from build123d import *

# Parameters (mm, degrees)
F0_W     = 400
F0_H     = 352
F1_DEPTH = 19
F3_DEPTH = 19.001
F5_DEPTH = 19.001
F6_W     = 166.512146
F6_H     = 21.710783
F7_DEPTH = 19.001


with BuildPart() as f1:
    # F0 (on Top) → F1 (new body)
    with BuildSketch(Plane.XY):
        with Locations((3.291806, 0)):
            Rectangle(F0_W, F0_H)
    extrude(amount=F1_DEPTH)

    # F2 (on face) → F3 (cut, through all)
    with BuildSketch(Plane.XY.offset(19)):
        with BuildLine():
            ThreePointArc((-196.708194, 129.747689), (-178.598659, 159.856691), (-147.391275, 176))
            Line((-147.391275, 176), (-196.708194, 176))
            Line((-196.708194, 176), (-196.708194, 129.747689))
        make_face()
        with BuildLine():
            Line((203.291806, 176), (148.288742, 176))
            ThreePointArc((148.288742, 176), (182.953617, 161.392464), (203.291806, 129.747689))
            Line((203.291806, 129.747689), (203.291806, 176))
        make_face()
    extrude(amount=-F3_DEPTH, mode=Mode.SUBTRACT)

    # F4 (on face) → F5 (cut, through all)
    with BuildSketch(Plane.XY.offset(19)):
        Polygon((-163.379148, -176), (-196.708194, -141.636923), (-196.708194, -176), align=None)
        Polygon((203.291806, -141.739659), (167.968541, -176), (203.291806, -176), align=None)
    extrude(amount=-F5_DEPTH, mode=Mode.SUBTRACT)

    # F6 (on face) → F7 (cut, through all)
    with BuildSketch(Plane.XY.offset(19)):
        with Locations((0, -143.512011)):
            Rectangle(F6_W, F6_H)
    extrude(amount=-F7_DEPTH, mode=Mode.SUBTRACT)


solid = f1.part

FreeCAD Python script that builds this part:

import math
import FreeCAD as App
import Part
import Sketcher

doc = App.newDocument("Part")
params = doc.addObject("Spreadsheet::Sheet", "Params")
for row, (alias, value) in enumerate([
    ("sketch1_width", "400 mm"),
    ("sketch1_height", "352 mm"),
    ("pad1_length", "19 mm"),
], start=1):
    params.set(f"A{row}", alias)
    params.set(f"B{row}", "=" + value)
    params.setAlias(f"B{row}", alias)

body = doc.addObject("PartDesign::Body", "Body")

sketch1 = body.newObject("Sketcher::SketchObject", "Sketch")
sketch1.AttachmentSupport = (doc.getObject("XY_Plane"), [""])
sketch1.MapMode = "FlatFace"
sketch1.addGeometry(Part.LineSegment(App.Vector(-196.708194, 176, 0), App.Vector(-196.708194, -176, 0)), False)
sketch1.addGeometry(Part.LineSegment(App.Vector(-196.708194, -176, 0), App.Vector(203.291806, -176, 0)), False)
sketch1.addGeometry(Part.LineSegment(App.Vector(203.291806, -176, 0), App.Vector(203.291806, 176, 0)), False)
sketch1.addGeometry(Part.LineSegment(App.Vector(203.291806, 176, 0), App.Vector(-196.708194, 176, 0)), False)
sketch1.addConstraint(Sketcher.Constraint("Coincident", 0, 2, 1, 1))
sketch1.addConstraint(Sketcher.Constraint("Coincident", 1, 2, 2, 1))
sketch1.addConstraint(Sketcher.Constraint("Coincident", 2, 2, 3, 1))
sketch1.addConstraint(Sketcher.Constraint("Coincident", 3, 2, 0, 1))
sketch1.addConstraint(Sketcher.Constraint("Vertical", 0))
sketch1.addConstraint(Sketcher.Constraint("Horizontal", 1))
sketch1.addConstraint(Sketcher.Constraint("Vertical", 2))
sketch1.addConstraint(Sketcher.Constraint("Horizontal", 3))
sketch1.addConstraint(Sketcher.Constraint("DistanceX", 1, 1, 1, 2, 400.0))
sketch1.addConstraint(Sketcher.Constraint("DistanceY", 0, 2, 0, 1, 352.0))
sketch1.addConstraint(Sketcher.Constraint("DistanceY", 0, 2, -1, 1, 176.0))
sketch1.addConstraint(Sketcher.Constraint("DistanceX", 0, 2, -1, 1, 196.708194))
sketch1.setExpression("Constraints[8]", "Params.sketch1_width")
sketch1.setExpression("Constraints[9]", "Params.sketch1_height")
pad1 = body.newObject("PartDesign::Pad", "Pad")
pad1.Profile = sketch1
pad1.setExpression("Length", "Params.pad1_length")

sketch2 = body.newObject("Sketcher::SketchObject", "Sketch001")
sketch2.AttachmentSupport = (doc.getObject("XY_Plane"), [""])
sketch2.MapMode = "FlatFace"
sketch2.AttachmentOffset = App.Placement(App.Vector(0, 0, 19), App.Rotation())
sketch2.addGeometry(Part.ArcOfCircle(Part.Circle(App.Vector(-134.49161, 112.827175, 0), App.Vector(0, 0, 1), 64.476408), math.radians(101.540935), math.radians(164.785729)), False)
sketch2.addGeometry(Part.LineSegment(App.Vector(-147.391275, 176, 0), App.Vector(-196.708194, 176, 0)), False)
sketch2.addGeometry(Part.LineSegment(App.Vector(-196.708194, 176, 0), App.Vector(-196.708194, 129.747689, 0)), False)
sketch2.addGeometry(Part.LineSegment(App.Vector(203.291806, 176, 0), App.Vector(148.288742, 176, 0)), False)
sketch2.addGeometry(Part.ArcOfCircle(Part.Circle(App.Vector(142.041676, 112.740146, 0), App.Vector(0, 0, 1), 63.567562), math.radians(15.518568), math.radians(84.360187)), False)
sketch2.addGeometry(Part.LineSegment(App.Vector(203.291806, 129.747689, 0), App.Vector(203.291806, 176, 0)), False)
sketch2.addConstraint(Sketcher.Constraint("Coincident", 0, 1, 1, 1))
sketch2.addConstraint(Sketcher.Constraint("Coincident", 1, 2, 2, 1))
sketch2.addConstraint(Sketcher.Constraint("Coincident", 2, 2, 0, 2))
sketch2.addConstraint(Sketcher.Constraint("Coincident", 3, 2, 4, 2))
sketch2.addConstraint(Sketcher.Constraint("Coincident", 4, 1, 5, 1))
sketch2.addConstraint(Sketcher.Constraint("Coincident", 5, 2, 3, 1))
sketch2.addConstraint(Sketcher.Constraint("Horizontal", 1))
sketch2.addConstraint(Sketcher.Constraint("Vertical", 2))
sketch2.addConstraint(Sketcher.Constraint("Horizontal", 3))
sketch2.addConstraint(Sketcher.Constraint("Vertical", 5))
sketch2.addConstraint(Sketcher.Constraint("Horizontal", 1, 2, 3, 2))
sketch2.addConstraint(Sketcher.Constraint("Horizontal", 2, 2, 4, 1))
sketch2.addConstraint(Sketcher.Constraint("DistanceY", -1, 1, 0, 1, 176.0))
sketch2.addConstraint(Sketcher.Constraint("DistanceX", 2, 2, 4, 1, 400.0))
sketch2.addConstraint(Sketcher.Constraint("Radius", 4, 63.567562))
sketch2.addConstraint(Sketcher.Constraint("Radius", 0, 64.476408))
sketch2.addConstraint(Sketcher.Constraint("DistanceX", 1, 2, 1, 1, 49.316919))
sketch2.addConstraint(Sketcher.Constraint("DistanceY", 2, 2, 2, 1, 46.252311))
sketch2.addConstraint(Sketcher.Constraint("DistanceX", 3, 2, 3, 1, 55.003064))
sketch2.addConstraint(Sketcher.Constraint("DistanceX", 0, 3, -1, 1, 134.49161))
pocket1 = body.newObject("PartDesign::Pocket", "Pocket")
pocket1.Profile = sketch2
pocket1.Type = "ThroughAll"

sketch3 = body.newObject("Sketcher::SketchObject", "Sketch002")
sketch3.AttachmentSupport = (doc.getObject("XY_Plane"), [""])
sketch3.MapMode = "FlatFace"
sketch3.AttachmentOffset = App.Placement(App.Vector(0, 0, 19), App.Rotation())
sketch3.addGeometry(Part.LineSegment(App.Vector(-163.379148, -176, 0), App.Vector(-196.708194, -141.636923, 0)), False)
sketch3.addGeometry(Part.LineSegment(App.Vector(-196.708194, -141.636923, 0), App.Vector(-196.708194, -176, 0)), False)
sketch3.addGeometry(Part.LineSegment(App.Vector(-196.708194, -176, 0), App.Vector(-163.379148, -176, 0)), False)
sketch3.addGeometry(Part.LineSegment(App.Vector(203.291806, -141.739659, 0), App.Vector(167.968541, -176, 0)), False)
sketch3.addGeometry(Part.LineSegment(App.Vector(167.968541, -176, 0), App.Vector(203.291806, -176, 0)), False)
sketch3.addGeometry(Part.LineSegment(App.Vector(203.291806, -176, 0), App.Vector(203.291806, -141.739659, 0)), False)
sketch3.addConstraint(Sketcher.Constraint("Coincident", 0, 2, 1, 1))
sketch3.addConstraint(Sketcher.Constraint("Coincident", 1, 2, 2, 1))
sketch3.addConstraint(Sketcher.Constraint("Coincident", 2, 2, 0, 1))
sketch3.addConstraint(Sketcher.Constraint("Coincident", 3, 2, 4, 1))
sketch3.addConstraint(Sketcher.Constraint("Coincident", 4, 2, 5, 1))
sketch3.addConstraint(Sketcher.Constraint("Coincident", 5, 2, 3, 1))
sketch3.addConstraint(Sketcher.Constraint("Vertical", 1))
sketch3.addConstraint(Sketcher.Constraint("Horizontal", 2))
sketch3.addConstraint(Sketcher.Constraint("Horizontal", 4))
sketch3.addConstraint(Sketcher.Constraint("Vertical", 5))
sketch3.addConstraint(Sketcher.Constraint("Perpendicular", 0, 3))
sketch3.addConstraint(Sketcher.Constraint("Horizontal", 2, 2, 3, 2))
sketch3.addConstraint(Sketcher.Constraint("DistanceY", 1, 2, -1, 1, 176.0))
sketch3.addConstraint(Sketcher.Constraint("DistanceX", 1, 2, 4, 2, 400.0))
sketch3.addConstraint(Sketcher.Constraint("DistanceY", 5, 1, 5, 2, 34.260341))
sketch3.addConstraint(Sketcher.Constraint("Distance", 3, 49.20878))
sketch3.addConstraint(Sketcher.Constraint("DistanceX", 2, 1, 2, 2, 33.329046))
sketch3.addConstraint(Sketcher.Constraint("DistanceX", -1, 1, 3, 2, 167.968541))
pocket2 = body.newObject("PartDesign::Pocket", "Pocket001")
pocket2.Profile = sketch3
pocket2.Type = "ThroughAll"

sketch4 = body.newObject("Sketcher::SketchObject", "Sketch003")
sketch4.AttachmentSupport = (doc.getObject("XY_Plane"), [""])
sketch4.MapMode = "FlatFace"
sketch4.AttachmentOffset = App.Placement(App.Vector(0, 0, 19), App.Rotation())
sketch4.addGeometry(Part.LineSegment(App.Vector(-83.256073, -132.65662, 0), App.Vector(-83.256073, -154.367402, 0)), False)
sketch4.addGeometry(Part.LineSegment(App.Vector(-83.256073, -154.367402, 0), App.Vector(83.256073, -154.367402, 0)), False)
sketch4.addGeometry(Part.LineSegment(App.Vector(83.256073, -154.367402, 0), App.Vector(83.256073, -132.65662, 0)), False)
sketch4.addGeometry(Part.LineSegment(App.Vector(83.256073, -132.65662, 0), App.Vector(-83.256073, -132.65662, 0)), False)
sketch4.addConstraint(Sketcher.Constraint("Coincident", 0, 2, 1, 1))
sketch4.addConstraint(Sketcher.Constraint("Coincident", 1, 2, 2, 1))
sketch4.addConstraint(Sketcher.Constraint("Coincident", 2, 2, 3, 1))
sketch4.addConstraint(Sketcher.Constraint("Coincident", 3, 2, 0, 1))
sketch4.addConstraint(Sketcher.Constraint("Vertical", 0))
sketch4.addConstraint(Sketcher.Constraint("Horizontal", 1))
sketch4.addConstraint(Sketcher.Constraint("Vertical", 2))
sketch4.addConstraint(Sketcher.Constraint("Horizontal", 3))
sketch4.addConstraint(Sketcher.Constraint("DistanceX", 1, 1, 1, 2, 166.512146))
sketch4.addConstraint(Sketcher.Constraint("DistanceY", 0, 2, 0, 1, 21.710783))
sketch4.addConstraint(Sketcher.Constraint("DistanceY", 2, 2, -1, 1, 132.65662))
sketch4.addConstraint(Sketcher.Constraint("DistanceX", 0, 2, -1, 1, 83.256073))
pocket3 = body.newObject("PartDesign::Pocket", "Pocket002")
pocket3.Profile = sketch4
pocket3.Type = "ThroughAll"

doc.recompute()
